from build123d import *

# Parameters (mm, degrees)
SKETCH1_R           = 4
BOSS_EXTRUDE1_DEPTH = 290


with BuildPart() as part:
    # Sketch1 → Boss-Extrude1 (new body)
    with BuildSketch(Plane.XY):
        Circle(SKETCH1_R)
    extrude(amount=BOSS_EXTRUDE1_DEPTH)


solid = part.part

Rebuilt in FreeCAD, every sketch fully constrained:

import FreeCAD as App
import Part
import Sketcher
Q = App.Units.Quantity

doc = App.newDocument("Part")
body = doc.addObject("PartDesign::Body", "Body")

sketch1 = body.newObject("Sketcher::SketchObject", "Sketch")
sketch1.AttachmentSupport = (doc.getObject("XY_Plane"), [""])
sketch1.MapMode = "FlatFace"
sketch1.addGeometry(Part.Circle(App.Vector(0, 0, 0), App.Vector(0, 0, 1), 4), False)
sketch1.addConstraint(Sketcher.Constraint("Coincident", 0, 3, -1, 1))
sketch1.addConstraint(Sketcher.Constraint("Diameter", 0, Q("8 mm")))
pad1 = body.newObject("PartDesign::Pad", "Pad")
pad1.Profile = sketch1
pad1.Length = 290

doc.recompute()
